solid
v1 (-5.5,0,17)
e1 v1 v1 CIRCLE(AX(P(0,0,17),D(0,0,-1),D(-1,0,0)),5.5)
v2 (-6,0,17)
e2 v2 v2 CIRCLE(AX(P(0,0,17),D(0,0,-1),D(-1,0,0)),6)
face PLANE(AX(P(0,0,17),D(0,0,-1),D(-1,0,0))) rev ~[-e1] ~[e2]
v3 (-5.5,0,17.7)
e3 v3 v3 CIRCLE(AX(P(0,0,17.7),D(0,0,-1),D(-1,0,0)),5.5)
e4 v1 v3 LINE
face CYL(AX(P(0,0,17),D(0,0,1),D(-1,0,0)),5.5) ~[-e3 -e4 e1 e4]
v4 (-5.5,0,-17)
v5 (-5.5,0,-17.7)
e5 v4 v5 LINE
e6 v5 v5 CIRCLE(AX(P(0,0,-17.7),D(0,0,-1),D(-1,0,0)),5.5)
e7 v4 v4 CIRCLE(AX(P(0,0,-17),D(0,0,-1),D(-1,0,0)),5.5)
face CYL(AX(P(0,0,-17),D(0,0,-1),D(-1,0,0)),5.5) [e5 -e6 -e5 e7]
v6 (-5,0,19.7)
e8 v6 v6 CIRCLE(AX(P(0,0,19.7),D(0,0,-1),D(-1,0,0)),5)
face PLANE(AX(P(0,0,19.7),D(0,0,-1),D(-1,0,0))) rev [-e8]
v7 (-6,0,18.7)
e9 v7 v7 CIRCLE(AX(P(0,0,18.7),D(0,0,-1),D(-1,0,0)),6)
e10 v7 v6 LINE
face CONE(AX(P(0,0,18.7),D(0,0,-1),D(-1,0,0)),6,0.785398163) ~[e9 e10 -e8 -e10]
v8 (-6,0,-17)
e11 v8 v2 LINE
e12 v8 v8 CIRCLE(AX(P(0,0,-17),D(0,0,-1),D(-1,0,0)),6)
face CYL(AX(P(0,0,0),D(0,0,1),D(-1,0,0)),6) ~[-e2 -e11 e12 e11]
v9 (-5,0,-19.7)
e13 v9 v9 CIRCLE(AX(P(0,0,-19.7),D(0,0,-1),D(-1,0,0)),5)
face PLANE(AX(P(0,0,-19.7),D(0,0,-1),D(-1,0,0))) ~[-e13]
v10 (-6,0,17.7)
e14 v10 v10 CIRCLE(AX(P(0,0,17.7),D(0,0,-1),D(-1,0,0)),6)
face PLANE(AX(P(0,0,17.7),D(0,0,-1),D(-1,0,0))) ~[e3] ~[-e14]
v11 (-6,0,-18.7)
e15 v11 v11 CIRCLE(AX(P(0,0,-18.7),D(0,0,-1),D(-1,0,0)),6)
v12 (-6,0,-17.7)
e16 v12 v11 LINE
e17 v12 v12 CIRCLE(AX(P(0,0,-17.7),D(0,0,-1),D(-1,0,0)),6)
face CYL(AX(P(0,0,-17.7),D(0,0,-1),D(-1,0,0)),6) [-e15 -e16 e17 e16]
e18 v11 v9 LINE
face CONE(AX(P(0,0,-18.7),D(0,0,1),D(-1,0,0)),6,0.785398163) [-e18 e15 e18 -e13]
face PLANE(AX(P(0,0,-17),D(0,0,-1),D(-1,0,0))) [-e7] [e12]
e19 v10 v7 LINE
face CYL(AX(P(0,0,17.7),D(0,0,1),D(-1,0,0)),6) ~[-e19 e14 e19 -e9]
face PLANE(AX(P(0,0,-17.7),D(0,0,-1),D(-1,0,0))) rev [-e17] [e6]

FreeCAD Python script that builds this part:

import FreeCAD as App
import Part
import Sketcher

V = App.Vector
Q = App.Units.Quantity


def add_polygon(sketch, points):
    """Adds a closed chain of lines whose ends are joined by coincident constraints."""
    first, n = sketch.GeometryCount, len(points)
    for a, b in zip(points, points[1:] + points[:1]):
        sketch.addGeometry(Part.LineSegment(App.Vector(*a, 0), App.Vector(*b, 0)), False)
    for i in range(n):
        sketch.addConstraint(Sketcher.Constraint("Coincident", first + i, 2, first + (i + 1) % n, 1))

doc = App.newDocument("Part")
params = doc.addObject("Spreadsheet::Sheet", "Params")
for row, (alias, value) in enumerate([
    ("sketch1_height", "1 mm"),
    ("sketch1_width", "0.5 mm"),
    ("sketch1_height2", "0.7 mm"),
    ("revolution_angle", "360 deg"),
], start=1):
    params.set(f"A{row}", alias)
    params.set(f"B{row}", "=" + value)
    params.setAlias(f"B{row}", alias)

body = doc.addObject("PartDesign::Body", "Body")

# Sketch on XZ plane
sketch1 = body.newObject("Sketcher::SketchObject", "Sketch")
sketch1.AttachmentSupport = (doc.getObject("XZ_Plane"), [""])
sketch1.MapMode = "FlatFace"
add_polygon(sketch1, [(0, 19.7), (0, -19.7), (-5, -19.7), (-6, -18.7), (-6, -17.7), (-5.5, -17.7), (-5.5, -17), (-6, -17), (-6, 17), (-5.5, 17), (-5.5, 17.7), (-6, 17.7), (-6, 18.7), (-5, 19.7)])  # lines 0-13
sketch1.addConstraint([
    Sketcher.Constraint("Vertical", 0),
    Sketcher.Constraint("Horizontal", 1),
    Sketcher.Constraint("Vertical", 3),
    Sketcher.Constraint("Horizontal", 4),
    Sketcher.Constraint("Vertical", 5),
    Sketcher.Constraint("Horizontal", 6),
    Sketcher.Constraint("Vertical", 7),
    Sketcher.Constraint("Horizontal", 8),
    Sketcher.Constraint("Vertical", 9),
    Sketcher.Constraint("Horizontal", 10),
    Sketcher.Constraint("Vertical", 11),
    Sketcher.Constraint("Horizontal", 13),
    Sketcher.Constraint("Symmetric", 0, 2, 13, 2, -1, 1),
    Sketcher.Constraint("Symmetric", 5, 2, 8, 2, -1),
    Sketcher.Constraint("Symmetric", 3, 2, 10, 2, -1),
    Sketcher.Constraint("Perpendicular", 2, 12),
    Sketcher.Constraint("Vertical", 3, 2, 6, 2),
    Sketcher.Constraint("Vertical", 1, 2, 12, 2),
    Sketcher.Constraint("Equal", 3, 11),
    Sketcher.Constraint("DistanceY", 3, 1, 3, 2, Q("1 mm")),
    Sketcher.Constraint("DistanceX", 4, 1, 4, 2, Q("0.5 mm")),
    Sketcher.Constraint("DistanceY", 5, 1, 5, 2, Q("0.7 mm")),
    Sketcher.Constraint("DistanceX", 2, 2, -1, 1, Q("6 mm")),
    Sketcher.Constraint("DistanceY", 5, 2, -1, 1, Q("17 mm")),
    Sketcher.Constraint("DistanceX", 2, 2, 1, 2, Q("1 mm")),
])
sketch1.setExpression("Constraints[33]", "Params.sketch1_height")
sketch1.setExpression("Constraints[34]", "Params.sketch1_width")
sketch1.setExpression("Constraints[35]", "Params.sketch1_height2")
revolution = body.newObject("PartDesign::Revolution", "Revolution")
revolution.Profile = sketch1
revolution.ReferenceAxis = (sketch1, ["V_Axis"])
revolution.setExpression("Angle", "Params.revolution_angle")

doc.recompute()
